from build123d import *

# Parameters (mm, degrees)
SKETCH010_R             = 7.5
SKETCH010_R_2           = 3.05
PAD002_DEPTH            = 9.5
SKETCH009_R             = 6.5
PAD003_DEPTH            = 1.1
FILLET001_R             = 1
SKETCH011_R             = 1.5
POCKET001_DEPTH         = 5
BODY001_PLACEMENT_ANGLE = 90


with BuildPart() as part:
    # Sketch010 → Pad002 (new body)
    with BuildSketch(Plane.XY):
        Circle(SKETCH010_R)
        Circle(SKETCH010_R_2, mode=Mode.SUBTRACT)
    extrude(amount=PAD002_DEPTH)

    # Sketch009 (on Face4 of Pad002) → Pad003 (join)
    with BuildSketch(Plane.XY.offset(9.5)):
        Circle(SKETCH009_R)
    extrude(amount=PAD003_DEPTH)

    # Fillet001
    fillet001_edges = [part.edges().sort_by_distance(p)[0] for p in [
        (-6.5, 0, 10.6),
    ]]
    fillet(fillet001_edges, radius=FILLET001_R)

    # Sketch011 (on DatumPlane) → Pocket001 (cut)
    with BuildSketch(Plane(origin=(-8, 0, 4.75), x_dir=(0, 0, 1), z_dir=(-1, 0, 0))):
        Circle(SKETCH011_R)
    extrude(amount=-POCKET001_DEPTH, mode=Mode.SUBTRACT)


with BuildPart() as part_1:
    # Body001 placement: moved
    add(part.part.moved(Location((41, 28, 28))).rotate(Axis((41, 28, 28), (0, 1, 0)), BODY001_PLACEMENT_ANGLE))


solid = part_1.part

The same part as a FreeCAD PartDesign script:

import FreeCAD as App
import Part
import Sketcher


def edges_at(feature, points):
    """Names of the edges that pass closest to the given points."""
    edges = feature.Shape.Edges
    near = lambda p: min(range(len(edges)), key=lambda i: edges[i].distToShape(Part.Vertex(*p))[0])
    return sorted({f"Edge{near(p) + 1}" for p in points})

doc = App.newDocument("Part")
body = doc.addObject("PartDesign::Body", "Body")

# Sketch on XY plane
sketch1 = body.newObject("Sketcher::SketchObject", "Sketch")
sketch1.AttachmentSupport = (doc.getObject("XY_Plane"), [""])
sketch1.MapMode = "FlatFace"
sketch1.addGeometry(Part.Circle(App.Vector(0, 0, 0), App.Vector(0, 0, 1), 7.5), False)
sketch1.addGeometry(Part.Circle(App.Vector(0, 0, 0), App.Vector(0, 0, 1), 3), False)
sketch1.addConstraint(Sketcher.Constraint("Coincident", 0, 3, -1, 1))
sketch1.addConstraint(Sketcher.Constraint("Coincident", 1, 3, -1, 1))
sketch1.addConstraint(Sketcher.Constraint("Diameter", 0, 15.0))
sketch1.addConstraint(Sketcher.Constraint("Diameter", 1, 6.1))
pad1 = body.newObject("PartDesign::Pad", "Pad")
pad1.Profile = sketch1
pad1.Length = 9.5

# Sketch on XY plane
sketch2 = body.newObject("Sketcher::SketchObject", "Sketch001")
sketch2.AttachmentSupport = (doc.getObject("XY_Plane"), [""])
sketch2.MapMode = "FlatFace"
sketch2.AttachmentOffset = App.Placement(App.Vector(0, 0, 9.5), App.Rotation())
sketch2.addGeometry(Part.Circle(App.Vector(0, 0, 0), App.Vector(0, 0, 1), 6), False)
sketch2.addConstraint(Sketcher.Constraint("Coincident", 0, 3, -1, 1))
sketch2.addConstraint(Sketcher.Constraint("Diameter", 0, 13.0))
pad2 = body.newObject("PartDesign::Pad", "Pad001")
pad2.Profile = sketch2
pad2.Length = 1.1
doc.recompute()

fillet = body.newObject("PartDesign::Fillet", "Fillet")
fillet.Base = (pad2, edges_at(pad2, [(-6.5, 0, 10.6)]))
fillet.Radius = 1

# Sketch on YZ plane
sketch3 = body.newObject("Sketcher::SketchObject", "Sketch002")
sketch3.AttachmentSupport = (doc.getObject("YZ_Plane"), [""])
sketch3.MapMode = "FlatFace"
sketch3.AttachmentOffset = App.Placement(App.Vector(0, 0, -8), App.Rotation())
sketch3.addGeometry(Part.Circle(App.Vector(0, 4.8, 0), App.Vector(0, 0, 1), 1.5), False)
sketch3.addConstraint(Sketcher.Constraint("PointOnObject", 0, 3, -2))
sketch3.addConstraint(Sketcher.Constraint("Diameter", 0, 3.0))
sketch3.addConstraint(Sketcher.Constraint("DistanceY", -1, 1, 0, 3, 4.75))
pocket1 = body.newObject("PartDesign::Pocket", "Pocket")
pocket1.Profile = sketch3
pocket1.Length = 5
pocket1.Reversed = True
body2 = doc.addObject("PartDesign::Body", "Body001")
doc.recompute()

body.Placement = App.Placement(App.Vector(41, 28, 28), App.Rotation(App.Vector(0, 1, 0), 90))
boolean = body2.newObject("PartDesign::Boolean", "Boolean")
boolean.Type = "Fuse"
boolean.addObjects([body])

doc.recompute()
